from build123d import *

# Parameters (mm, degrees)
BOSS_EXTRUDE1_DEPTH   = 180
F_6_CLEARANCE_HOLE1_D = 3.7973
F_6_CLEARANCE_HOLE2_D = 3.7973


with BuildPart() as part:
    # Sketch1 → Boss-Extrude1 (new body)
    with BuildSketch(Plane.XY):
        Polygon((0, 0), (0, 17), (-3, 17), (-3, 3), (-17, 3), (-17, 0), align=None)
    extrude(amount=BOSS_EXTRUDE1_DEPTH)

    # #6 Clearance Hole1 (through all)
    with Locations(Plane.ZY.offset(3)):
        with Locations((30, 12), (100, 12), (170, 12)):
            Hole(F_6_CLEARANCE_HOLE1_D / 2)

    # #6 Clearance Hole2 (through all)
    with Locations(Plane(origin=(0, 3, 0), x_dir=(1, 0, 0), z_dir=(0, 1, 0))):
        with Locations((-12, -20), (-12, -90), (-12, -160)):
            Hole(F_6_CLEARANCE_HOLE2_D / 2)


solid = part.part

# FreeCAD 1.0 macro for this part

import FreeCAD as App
import Part
import Sketcher

V = App.Vector
Q = App.Units.Quantity

doc = App.newDocument("Part")
body = doc.addObject("PartDesign::Body", "Body")

sketch1 = doc.addObject("Sketcher::SketchObject", "Sketch")
body.addObject(sketch1)
sketch1.AttachmentSupport = (doc.XY_Plane, [""])
sketch1.MapMode = "FlatFace"
sketch1.addGeometry([
    Part.LineSegment(V(0, 0, 0), V(0, 17, 0)),
    Part.LineSegment(V(0, 17, 0), V(-3, 17, 0)),
    Part.LineSegment(V(-3, 17, 0), V(-3, 3, 0)),
    Part.LineSegment(V(-3, 3, 0), V(-17, 3, 0)),
    Part.LineSegment(V(-17, 3, 0), V(-17, 0, 0)),
    Part.LineSegment(V(-17, 0, 0), V(0, 0, 0)),
], False)
sketch1.addConstraint([
    Sketcher.Constraint("Coincident", 0, 2, 1, 1),
    Sketcher.Constraint("Coincident", 1, 2, 2, 1),
    Sketcher.Constraint("Coincident", 2, 2, 3, 1),
    Sketcher.Constraint("Coincident", 3, 2, 4, 1),
    Sketcher.Constraint("Coincident", 4, 2, 5, 1),
    Sketcher.Constraint("Coincident", 5, 2, 0, 1),
    Sketcher.Constraint("Vertical", 0),
    Sketcher.Constraint("Horizontal", 1),
    Sketcher.Constraint("Vertical", 2),
    Sketcher.Constraint("Horizontal", 3),
    Sketcher.Constraint("Vertical", 4),
    Sketcher.Constraint("Horizontal", 5),
    Sketcher.Constraint("Coincident", 5, 2, -1, 1),
    Sketcher.Constraint("Equal", 5, 0),
    Sketcher.Constraint("Equal", 3, 2),
    Sketcher.Constraint("DistanceX", 1, 2, 1, 1, Q("3 mm")),
    Sketcher.Constraint("DistanceX", 3, 2, 3, 1, Q("14 mm")),
])
pad1 = doc.addObject("PartDesign::Pad", "Pad")
body.addObject(pad1)
pad1.Profile = sketch1
pad1.Length = 180

sketch2 = doc.addObject("Sketcher::SketchObject", "Sketch001")
body.addObject(sketch2)
sketch2.AttachmentSupport = (doc.YZ_Plane, [""])
sketch2.MapMode = "FlatFace"
sketch2.AttachmentOffset = App.Placement(V(0, 0, -3), App.Rotation())
sketch2.addGeometry([
    Part.Circle(V(12, 30, 0), V(0, 0, 1), 1.9),
    Part.Circle(V(12, 100, 0), V(0, 0, 1), 1.9),
    Part.Circle(V(12, 170, 0), V(0, 0, 1), 1.9),
], False)
sketch2.addConstraint([
    Sketcher.Constraint("Equal", 0, 1),
    Sketcher.Constraint("Equal", 1, 2),
    Sketcher.Constraint("Vertical", 0, 3, 1, 3),
    Sketcher.Constraint("Vertical", 1, 3, 2, 3),
    Sketcher.Constraint("DistanceX", -1, 1, 0, 3, Q("12 mm")),
    Sketcher.Constraint("DistanceY", -1, 1, 0, 3, Q("30 mm")),
    Sketcher.Constraint("DistanceY", -1, 1, 1, 3, Q("100 mm")),
    Sketcher.Constraint("DistanceY", -1, 1, 2, 3, Q("170 mm")),
    Sketcher.Constraint("Diameter", 0, Q("3.7973 mm")),
])
doc.recompute()
hole = doc.addObject("PartDesign::Hole", "Hole")
body.addObject(hole)
hole.Profile = sketch2
hole.ThreadType = "None"
hole.Diameter = 3.7973
hole.DepthType = "ThroughAll"
hole.Reversed = True

sketch3 = doc.addObject("Sketcher::SketchObject", "Sketch002")
body.addObject(sketch3)
sketch3.AttachmentSupport = (doc.XZ_Plane, [""])
sketch3.MapMode = "FlatFace"
sketch3.AttachmentOffset = App.Placement(V(0, 0, -3), App.Rotation())
sketch3.addGeometry([
    Part.Circle(V(-12, 20, 0), V(0, 0, 1), 1.9),
    Part.Circle(V(-12, 90, 0), V(0, 0, 1), 1.9),
    Part.Circle(V(-12, 160, 0), V(0, 0, 1), 1.9),
], False)
sketch3.addConstraint([
    Sketcher.Constraint("Equal", 0, 1),
    Sketcher.Constraint("Equal", 1, 2),
    Sketcher.Constraint("Vertical", 0, 3, 1, 3),
    Sketcher.Constraint("Vertical", 1, 3, 2, 3),
    Sketcher.Constraint("DistanceX", 0, 3, -1, 1, Q("12 mm")),
    Sketcher.Constraint("DistanceY", -1, 1, 0, 3, Q("20 mm")),
    Sketcher.Constraint("DistanceY", -1, 1, 1, 3, Q("90 mm")),
    Sketcher.Constraint("DistanceY", -1, 1, 2, 3, Q("160 mm")),
    Sketcher.Constraint("Diameter", 0, Q("3.7973 mm")),
])
doc.recompute()
hole2 = doc.addObject("PartDesign::Hole", "Hole001")
body.addObject(hole2)
hole2.Profile = sketch3
hole2.ThreadType = "None"
hole2.Diameter = 3.7973
hole2.DepthType = "ThroughAll"
hole2.Reversed = True

doc.recompute()
